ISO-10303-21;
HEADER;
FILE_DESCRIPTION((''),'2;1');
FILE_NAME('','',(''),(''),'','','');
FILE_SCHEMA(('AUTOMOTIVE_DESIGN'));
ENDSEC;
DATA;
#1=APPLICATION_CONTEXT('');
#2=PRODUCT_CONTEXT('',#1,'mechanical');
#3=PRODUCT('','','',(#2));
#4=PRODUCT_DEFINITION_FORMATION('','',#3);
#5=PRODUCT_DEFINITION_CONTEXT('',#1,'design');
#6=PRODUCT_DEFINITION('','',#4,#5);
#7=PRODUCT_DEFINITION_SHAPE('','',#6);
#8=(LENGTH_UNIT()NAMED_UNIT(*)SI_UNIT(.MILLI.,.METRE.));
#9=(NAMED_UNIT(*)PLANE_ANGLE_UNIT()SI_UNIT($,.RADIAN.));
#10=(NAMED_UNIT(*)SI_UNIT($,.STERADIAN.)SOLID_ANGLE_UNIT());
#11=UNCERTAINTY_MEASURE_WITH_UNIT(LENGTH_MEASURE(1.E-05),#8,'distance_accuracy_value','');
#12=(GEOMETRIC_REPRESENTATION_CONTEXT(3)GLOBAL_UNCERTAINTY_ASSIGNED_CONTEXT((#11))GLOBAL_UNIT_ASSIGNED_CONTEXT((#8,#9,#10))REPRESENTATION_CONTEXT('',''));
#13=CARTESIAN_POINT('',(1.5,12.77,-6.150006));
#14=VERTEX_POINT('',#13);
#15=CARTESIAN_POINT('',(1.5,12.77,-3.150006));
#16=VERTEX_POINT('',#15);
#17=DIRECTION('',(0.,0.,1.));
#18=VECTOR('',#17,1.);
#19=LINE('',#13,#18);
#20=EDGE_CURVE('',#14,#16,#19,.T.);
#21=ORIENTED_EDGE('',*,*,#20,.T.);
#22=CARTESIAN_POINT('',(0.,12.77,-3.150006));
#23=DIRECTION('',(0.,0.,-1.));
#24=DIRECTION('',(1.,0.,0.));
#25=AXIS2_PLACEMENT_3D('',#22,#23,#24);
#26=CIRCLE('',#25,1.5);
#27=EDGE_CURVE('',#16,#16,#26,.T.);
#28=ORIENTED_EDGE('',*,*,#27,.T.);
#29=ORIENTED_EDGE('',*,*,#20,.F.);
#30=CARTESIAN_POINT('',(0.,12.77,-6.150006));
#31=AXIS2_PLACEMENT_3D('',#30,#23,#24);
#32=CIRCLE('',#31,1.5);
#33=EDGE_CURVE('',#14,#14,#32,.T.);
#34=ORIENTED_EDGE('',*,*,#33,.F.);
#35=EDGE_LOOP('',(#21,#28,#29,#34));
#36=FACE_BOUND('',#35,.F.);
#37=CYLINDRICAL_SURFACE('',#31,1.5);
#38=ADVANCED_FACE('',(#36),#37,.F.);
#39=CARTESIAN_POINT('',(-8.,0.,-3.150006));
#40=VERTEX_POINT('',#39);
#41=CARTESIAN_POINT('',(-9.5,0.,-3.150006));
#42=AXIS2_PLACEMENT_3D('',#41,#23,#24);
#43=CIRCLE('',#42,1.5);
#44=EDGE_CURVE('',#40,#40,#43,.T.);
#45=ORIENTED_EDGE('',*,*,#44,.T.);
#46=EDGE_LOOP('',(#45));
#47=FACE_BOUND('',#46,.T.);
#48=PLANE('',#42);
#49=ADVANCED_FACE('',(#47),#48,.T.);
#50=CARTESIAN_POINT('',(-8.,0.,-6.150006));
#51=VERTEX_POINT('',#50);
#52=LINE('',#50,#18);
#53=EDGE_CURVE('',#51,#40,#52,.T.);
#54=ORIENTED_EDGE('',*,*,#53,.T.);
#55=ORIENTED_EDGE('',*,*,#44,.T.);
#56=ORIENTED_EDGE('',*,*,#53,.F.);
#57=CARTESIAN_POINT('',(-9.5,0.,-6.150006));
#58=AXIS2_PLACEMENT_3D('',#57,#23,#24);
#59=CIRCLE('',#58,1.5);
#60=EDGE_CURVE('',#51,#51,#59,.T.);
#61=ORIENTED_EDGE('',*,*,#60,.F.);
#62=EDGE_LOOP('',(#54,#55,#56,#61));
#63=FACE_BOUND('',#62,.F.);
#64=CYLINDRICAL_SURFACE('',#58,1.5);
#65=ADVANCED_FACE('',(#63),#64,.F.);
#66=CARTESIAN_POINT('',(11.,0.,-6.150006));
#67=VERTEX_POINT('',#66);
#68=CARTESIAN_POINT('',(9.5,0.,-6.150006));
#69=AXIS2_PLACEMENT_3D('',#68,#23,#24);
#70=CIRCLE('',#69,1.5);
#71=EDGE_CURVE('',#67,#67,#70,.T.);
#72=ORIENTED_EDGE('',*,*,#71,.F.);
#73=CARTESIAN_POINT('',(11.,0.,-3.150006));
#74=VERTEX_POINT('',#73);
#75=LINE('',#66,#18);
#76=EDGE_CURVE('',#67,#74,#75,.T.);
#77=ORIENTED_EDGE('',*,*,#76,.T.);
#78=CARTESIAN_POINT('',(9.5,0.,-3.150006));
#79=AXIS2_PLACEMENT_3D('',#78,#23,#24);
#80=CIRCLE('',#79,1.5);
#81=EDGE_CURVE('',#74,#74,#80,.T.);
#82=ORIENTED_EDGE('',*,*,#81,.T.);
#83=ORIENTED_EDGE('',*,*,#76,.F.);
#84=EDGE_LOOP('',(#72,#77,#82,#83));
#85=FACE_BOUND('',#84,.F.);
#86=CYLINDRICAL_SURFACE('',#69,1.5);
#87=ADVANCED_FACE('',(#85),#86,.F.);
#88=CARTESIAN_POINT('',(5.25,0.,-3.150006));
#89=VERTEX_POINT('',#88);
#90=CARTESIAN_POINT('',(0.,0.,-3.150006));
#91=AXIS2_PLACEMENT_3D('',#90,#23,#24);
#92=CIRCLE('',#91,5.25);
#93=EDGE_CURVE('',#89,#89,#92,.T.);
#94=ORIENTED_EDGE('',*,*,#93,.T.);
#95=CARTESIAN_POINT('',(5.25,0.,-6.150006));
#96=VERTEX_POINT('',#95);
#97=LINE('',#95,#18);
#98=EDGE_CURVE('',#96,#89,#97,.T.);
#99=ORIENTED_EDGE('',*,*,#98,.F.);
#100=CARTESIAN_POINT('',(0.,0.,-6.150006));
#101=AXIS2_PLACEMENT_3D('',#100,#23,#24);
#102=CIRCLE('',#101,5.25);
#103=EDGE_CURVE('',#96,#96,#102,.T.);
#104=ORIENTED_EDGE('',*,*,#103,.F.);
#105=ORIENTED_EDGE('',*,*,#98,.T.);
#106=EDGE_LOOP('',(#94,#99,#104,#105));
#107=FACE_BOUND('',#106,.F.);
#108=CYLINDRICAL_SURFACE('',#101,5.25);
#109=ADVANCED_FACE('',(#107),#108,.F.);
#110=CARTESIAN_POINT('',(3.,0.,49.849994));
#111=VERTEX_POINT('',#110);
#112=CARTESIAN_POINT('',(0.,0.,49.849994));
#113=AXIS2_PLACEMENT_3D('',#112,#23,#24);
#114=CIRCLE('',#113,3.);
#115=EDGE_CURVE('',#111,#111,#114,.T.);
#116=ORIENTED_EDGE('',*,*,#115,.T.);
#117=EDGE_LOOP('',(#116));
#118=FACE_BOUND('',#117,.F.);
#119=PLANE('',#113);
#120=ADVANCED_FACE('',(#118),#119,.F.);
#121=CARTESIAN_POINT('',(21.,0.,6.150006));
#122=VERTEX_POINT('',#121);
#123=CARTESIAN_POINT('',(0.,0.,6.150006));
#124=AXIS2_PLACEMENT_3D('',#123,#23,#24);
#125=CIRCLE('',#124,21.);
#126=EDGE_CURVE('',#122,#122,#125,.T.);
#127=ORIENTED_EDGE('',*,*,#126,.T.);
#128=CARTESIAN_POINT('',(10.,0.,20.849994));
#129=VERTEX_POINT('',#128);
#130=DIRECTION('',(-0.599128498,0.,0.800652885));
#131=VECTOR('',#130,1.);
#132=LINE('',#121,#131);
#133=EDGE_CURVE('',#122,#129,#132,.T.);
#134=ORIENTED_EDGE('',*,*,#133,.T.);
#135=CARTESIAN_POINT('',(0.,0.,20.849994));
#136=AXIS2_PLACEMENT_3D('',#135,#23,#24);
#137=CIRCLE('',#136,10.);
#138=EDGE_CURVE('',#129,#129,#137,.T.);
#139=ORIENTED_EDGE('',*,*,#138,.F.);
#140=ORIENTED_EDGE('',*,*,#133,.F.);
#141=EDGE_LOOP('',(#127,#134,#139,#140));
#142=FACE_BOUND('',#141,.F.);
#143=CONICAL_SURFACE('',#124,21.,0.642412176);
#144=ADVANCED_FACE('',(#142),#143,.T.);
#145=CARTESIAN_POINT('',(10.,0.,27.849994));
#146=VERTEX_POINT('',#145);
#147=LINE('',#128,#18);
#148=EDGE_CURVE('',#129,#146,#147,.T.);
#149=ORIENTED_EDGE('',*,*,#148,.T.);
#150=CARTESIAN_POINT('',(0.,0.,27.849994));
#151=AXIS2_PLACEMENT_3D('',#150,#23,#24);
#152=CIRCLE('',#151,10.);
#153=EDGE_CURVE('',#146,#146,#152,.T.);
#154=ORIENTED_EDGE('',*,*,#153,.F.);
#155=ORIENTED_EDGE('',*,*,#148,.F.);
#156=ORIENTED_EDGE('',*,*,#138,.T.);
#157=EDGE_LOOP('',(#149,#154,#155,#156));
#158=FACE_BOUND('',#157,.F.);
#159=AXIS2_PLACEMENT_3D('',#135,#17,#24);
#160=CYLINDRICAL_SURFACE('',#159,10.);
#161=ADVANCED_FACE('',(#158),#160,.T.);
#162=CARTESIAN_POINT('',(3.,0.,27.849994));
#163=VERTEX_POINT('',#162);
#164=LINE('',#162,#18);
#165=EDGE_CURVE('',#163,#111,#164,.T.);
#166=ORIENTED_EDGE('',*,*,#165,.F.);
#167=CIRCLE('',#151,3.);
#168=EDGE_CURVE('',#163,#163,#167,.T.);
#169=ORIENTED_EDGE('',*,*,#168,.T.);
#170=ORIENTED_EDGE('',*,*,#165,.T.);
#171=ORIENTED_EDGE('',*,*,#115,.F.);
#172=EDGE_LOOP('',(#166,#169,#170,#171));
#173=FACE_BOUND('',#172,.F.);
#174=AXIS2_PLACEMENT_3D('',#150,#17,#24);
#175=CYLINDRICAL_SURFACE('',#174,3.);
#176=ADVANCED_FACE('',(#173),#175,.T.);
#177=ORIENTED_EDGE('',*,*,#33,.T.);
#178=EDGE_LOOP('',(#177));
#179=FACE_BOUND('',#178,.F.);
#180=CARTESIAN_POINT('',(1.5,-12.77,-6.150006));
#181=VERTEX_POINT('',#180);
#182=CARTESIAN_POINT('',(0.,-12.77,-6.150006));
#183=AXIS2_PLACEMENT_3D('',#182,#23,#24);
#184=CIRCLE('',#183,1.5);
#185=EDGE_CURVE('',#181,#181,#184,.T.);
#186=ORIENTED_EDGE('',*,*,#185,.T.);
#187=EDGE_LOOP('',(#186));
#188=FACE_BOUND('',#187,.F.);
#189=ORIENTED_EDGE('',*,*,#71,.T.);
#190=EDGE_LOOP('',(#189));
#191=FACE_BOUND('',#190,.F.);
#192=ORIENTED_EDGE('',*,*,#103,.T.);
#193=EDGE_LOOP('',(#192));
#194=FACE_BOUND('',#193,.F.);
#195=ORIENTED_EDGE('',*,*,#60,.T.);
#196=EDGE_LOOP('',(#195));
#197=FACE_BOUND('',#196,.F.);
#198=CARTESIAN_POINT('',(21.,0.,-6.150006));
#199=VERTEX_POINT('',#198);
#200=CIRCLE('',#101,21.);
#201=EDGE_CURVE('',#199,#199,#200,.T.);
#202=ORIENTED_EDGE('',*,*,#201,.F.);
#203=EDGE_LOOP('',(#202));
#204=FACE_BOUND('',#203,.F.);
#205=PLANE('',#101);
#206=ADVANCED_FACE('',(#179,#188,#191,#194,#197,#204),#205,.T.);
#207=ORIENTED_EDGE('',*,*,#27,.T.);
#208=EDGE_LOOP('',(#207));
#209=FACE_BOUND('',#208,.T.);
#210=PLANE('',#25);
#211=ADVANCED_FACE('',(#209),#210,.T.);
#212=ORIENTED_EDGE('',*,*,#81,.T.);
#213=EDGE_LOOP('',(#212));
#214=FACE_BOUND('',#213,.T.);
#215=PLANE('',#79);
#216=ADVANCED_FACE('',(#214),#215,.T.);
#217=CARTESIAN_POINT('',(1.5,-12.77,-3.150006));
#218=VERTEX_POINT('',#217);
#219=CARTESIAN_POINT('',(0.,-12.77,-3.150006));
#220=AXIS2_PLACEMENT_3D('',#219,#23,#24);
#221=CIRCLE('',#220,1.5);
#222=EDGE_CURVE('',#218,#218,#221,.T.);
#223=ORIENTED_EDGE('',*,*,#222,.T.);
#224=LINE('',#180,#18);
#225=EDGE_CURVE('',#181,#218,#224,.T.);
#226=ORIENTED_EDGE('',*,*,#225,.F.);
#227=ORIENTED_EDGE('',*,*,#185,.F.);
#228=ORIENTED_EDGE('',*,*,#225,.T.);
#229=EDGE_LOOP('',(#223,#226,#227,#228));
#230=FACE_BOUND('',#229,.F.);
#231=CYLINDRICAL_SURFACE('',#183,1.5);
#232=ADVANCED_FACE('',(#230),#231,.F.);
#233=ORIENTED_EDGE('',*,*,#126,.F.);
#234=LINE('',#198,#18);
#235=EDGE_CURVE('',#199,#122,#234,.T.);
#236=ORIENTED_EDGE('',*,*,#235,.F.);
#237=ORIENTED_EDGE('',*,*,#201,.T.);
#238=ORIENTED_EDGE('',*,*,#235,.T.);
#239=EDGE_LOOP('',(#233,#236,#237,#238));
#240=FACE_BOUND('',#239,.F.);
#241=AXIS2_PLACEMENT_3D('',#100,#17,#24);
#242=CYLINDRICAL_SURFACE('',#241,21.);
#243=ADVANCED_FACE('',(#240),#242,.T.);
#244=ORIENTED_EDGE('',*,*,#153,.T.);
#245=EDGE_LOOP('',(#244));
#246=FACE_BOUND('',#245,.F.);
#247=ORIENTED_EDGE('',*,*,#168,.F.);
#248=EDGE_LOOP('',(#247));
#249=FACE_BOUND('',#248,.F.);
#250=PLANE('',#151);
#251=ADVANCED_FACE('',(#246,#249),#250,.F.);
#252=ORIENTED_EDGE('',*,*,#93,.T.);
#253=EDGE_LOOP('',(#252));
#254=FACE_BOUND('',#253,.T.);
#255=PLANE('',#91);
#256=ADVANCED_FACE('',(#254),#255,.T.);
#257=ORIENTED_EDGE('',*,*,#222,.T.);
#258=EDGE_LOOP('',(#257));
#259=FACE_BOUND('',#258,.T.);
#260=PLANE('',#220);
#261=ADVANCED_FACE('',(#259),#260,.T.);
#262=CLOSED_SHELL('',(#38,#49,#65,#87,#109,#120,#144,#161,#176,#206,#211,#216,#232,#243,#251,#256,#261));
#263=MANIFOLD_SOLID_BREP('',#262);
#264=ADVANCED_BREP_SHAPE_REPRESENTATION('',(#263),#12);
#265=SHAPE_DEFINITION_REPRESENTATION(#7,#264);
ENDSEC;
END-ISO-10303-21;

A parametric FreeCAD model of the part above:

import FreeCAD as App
import Part
import Sketcher
Q = App.Units.Quantity

doc = App.newDocument("Part")
body = doc.addObject("PartDesign::Body", "Body")

sketch1 = doc.addObject("Sketcher::SketchObject", "Sketch")
body.addObject(sketch1)
sketch1.AttachmentSupport = (doc.XZ_Plane, [""])
sketch1.MapMode = "FlatFace"
sketch1.addGeometry([
    Part.LineSegment(App.Vector(0, 49.8, 0), App.Vector(0, -6.2, 0)),
    Part.LineSegment(App.Vector(0, -6.2, 0), App.Vector(21, -6.2, 0)),
    Part.LineSegment(App.Vector(21, -6.2, 0), App.Vector(21, 6.2, 0)),
    Part.LineSegment(App.Vector(21, 6.2, 0), App.Vector(10, 20.8, 0)),
    Part.LineSegment(App.Vector(10, 20.8, 0), App.Vector(10, 27.8, 0)),
    Part.LineSegment(App.Vector(10, 27.8, 0), App.Vector(3, 27.8, 0)),
    Part.LineSegment(App.Vector(3, 27.8, 0), App.Vector(3, 49.8, 0)),
    Part.LineSegment(App.Vector(3, 49.8, 0), App.Vector(0, 49.8, 0)),
], False)
sketch1.addConstraint([
    Sketcher.Constraint("Coincident", 0, 2, 1, 1),
    Sketcher.Constraint("Coincident", 1, 2, 2, 1),
    Sketcher.Constraint("Coincident", 2, 2, 3, 1),
    Sketcher.Constraint("Coincident", 3, 2, 4, 1),
    Sketcher.Constraint("Coincident", 4, 2, 5, 1),
    Sketcher.Constraint("Coincident", 5, 2, 6, 1),
    Sketcher.Constraint("Coincident", 6, 2, 7, 1),
    Sketcher.Constraint("Coincident", 7, 2, 0, 1),
    Sketcher.Constraint("Vertical", 0),
    Sketcher.Constraint("Horizontal", 1),
    Sketcher.Constraint("Vertical", 2),
    Sketcher.Constraint("Vertical", 4),
    Sketcher.Constraint("Horizontal", 5),
    Sketcher.Constraint("Vertical", 6),
    Sketcher.Constraint("Horizontal", 7),
    Sketcher.Constraint("PointOnObject", 0, 2, -2),
    Sketcher.Constraint("Equal", 5, 4),
    Sketcher.Constraint("DistanceX", 1, 1, 1, 2, Q("21 mm")),
    Sketcher.Constraint("DistanceX", 5, 2, 5, 1, Q("7 mm")),
    Sketcher.Constraint("DistanceX", 7, 2, 7, 1, Q("3 mm")),
    Sketcher.Constraint("DistanceY", 0, 2, 0, 1, Q("56 mm")),
    Sketcher.Constraint("DistanceY", 6, 1, 6, 2, Q("22 mm")),
    Sketcher.Constraint("Distance", 3, Q("18.360001 mm")),
    Sketcher.Constraint("DistanceY", 0, 2, -1, 1, Q("6.150006 mm")),
])
revolution = doc.addObject("PartDesign::Revolution", "Revolution")
body.addObject(revolution)
revolution.Profile = sketch1
revolution.ReferenceAxis = (sketch1, ["V_Axis"])
revolution.Angle = 360

sketch2 = doc.addObject("Sketcher::SketchObject", "Sketch001")
body.addObject(sketch2)
sketch2.AttachmentSupport = (doc.XY_Plane, [""])
sketch2.MapMode = "FlatFace"
sketch2.AttachmentOffset = App.Placement(App.Vector(0, 0, -6.150006), App.Rotation())
sketch2.addGeometry([
    Part.Circle(App.Vector(0, 0, 0), App.Vector(0, 0, 1), 5.2),
    Part.Circle(App.Vector(0, 12.8, 0), App.Vector(0, 0, 1), 1.5),
    Part.Circle(App.Vector(9.5, 0, 0), App.Vector(0, 0, 1), 1.5),
    Part.Circle(App.Vector(-9.5, 0, 0), App.Vector(0, 0, 1), 1.5),
    Part.Circle(App.Vector(0, -12.8, 0), App.Vector(0, 0, 1), 1.5),
], False)
sketch2.addConstraint([
    Sketcher.Constraint("Coincident", 0, 3, -1, 1),
    Sketcher.Constraint("Equal", 1, 2),
    Sketcher.Constraint("Equal", 2, 3),
    Sketcher.Constraint("Equal", 3, 4),
    Sketcher.Constraint("Symmetric", 2, 3, 3, 3, -1, 1),
    Sketcher.Constraint("Symmetric", 1, 3, 4, 3, -1, 1),
    Sketcher.Constraint("PointOnObject", 1, 3, -2),
    Sketcher.Constraint("PointOnObject", 2, 3, -1),
    Sketcher.Constraint("Diameter", 1, Q("3 mm")),
    Sketcher.Constraint("Diameter", 0, Q("10.5 mm")),
    Sketcher.Constraint("DistanceX", 3, 3, 2, 3, Q("19 mm")),
    Sketcher.Constraint("DistanceY", -1, 1, 1, 3, Q("12.77 mm")),
])
pocket1 = doc.addObject("PartDesign::Pocket", "Pocket")
body.addObject(pocket1)
pocket1.Profile = sketch2
pocket1.Length = 3
pocket1.Reversed = True

doc.recompute()
